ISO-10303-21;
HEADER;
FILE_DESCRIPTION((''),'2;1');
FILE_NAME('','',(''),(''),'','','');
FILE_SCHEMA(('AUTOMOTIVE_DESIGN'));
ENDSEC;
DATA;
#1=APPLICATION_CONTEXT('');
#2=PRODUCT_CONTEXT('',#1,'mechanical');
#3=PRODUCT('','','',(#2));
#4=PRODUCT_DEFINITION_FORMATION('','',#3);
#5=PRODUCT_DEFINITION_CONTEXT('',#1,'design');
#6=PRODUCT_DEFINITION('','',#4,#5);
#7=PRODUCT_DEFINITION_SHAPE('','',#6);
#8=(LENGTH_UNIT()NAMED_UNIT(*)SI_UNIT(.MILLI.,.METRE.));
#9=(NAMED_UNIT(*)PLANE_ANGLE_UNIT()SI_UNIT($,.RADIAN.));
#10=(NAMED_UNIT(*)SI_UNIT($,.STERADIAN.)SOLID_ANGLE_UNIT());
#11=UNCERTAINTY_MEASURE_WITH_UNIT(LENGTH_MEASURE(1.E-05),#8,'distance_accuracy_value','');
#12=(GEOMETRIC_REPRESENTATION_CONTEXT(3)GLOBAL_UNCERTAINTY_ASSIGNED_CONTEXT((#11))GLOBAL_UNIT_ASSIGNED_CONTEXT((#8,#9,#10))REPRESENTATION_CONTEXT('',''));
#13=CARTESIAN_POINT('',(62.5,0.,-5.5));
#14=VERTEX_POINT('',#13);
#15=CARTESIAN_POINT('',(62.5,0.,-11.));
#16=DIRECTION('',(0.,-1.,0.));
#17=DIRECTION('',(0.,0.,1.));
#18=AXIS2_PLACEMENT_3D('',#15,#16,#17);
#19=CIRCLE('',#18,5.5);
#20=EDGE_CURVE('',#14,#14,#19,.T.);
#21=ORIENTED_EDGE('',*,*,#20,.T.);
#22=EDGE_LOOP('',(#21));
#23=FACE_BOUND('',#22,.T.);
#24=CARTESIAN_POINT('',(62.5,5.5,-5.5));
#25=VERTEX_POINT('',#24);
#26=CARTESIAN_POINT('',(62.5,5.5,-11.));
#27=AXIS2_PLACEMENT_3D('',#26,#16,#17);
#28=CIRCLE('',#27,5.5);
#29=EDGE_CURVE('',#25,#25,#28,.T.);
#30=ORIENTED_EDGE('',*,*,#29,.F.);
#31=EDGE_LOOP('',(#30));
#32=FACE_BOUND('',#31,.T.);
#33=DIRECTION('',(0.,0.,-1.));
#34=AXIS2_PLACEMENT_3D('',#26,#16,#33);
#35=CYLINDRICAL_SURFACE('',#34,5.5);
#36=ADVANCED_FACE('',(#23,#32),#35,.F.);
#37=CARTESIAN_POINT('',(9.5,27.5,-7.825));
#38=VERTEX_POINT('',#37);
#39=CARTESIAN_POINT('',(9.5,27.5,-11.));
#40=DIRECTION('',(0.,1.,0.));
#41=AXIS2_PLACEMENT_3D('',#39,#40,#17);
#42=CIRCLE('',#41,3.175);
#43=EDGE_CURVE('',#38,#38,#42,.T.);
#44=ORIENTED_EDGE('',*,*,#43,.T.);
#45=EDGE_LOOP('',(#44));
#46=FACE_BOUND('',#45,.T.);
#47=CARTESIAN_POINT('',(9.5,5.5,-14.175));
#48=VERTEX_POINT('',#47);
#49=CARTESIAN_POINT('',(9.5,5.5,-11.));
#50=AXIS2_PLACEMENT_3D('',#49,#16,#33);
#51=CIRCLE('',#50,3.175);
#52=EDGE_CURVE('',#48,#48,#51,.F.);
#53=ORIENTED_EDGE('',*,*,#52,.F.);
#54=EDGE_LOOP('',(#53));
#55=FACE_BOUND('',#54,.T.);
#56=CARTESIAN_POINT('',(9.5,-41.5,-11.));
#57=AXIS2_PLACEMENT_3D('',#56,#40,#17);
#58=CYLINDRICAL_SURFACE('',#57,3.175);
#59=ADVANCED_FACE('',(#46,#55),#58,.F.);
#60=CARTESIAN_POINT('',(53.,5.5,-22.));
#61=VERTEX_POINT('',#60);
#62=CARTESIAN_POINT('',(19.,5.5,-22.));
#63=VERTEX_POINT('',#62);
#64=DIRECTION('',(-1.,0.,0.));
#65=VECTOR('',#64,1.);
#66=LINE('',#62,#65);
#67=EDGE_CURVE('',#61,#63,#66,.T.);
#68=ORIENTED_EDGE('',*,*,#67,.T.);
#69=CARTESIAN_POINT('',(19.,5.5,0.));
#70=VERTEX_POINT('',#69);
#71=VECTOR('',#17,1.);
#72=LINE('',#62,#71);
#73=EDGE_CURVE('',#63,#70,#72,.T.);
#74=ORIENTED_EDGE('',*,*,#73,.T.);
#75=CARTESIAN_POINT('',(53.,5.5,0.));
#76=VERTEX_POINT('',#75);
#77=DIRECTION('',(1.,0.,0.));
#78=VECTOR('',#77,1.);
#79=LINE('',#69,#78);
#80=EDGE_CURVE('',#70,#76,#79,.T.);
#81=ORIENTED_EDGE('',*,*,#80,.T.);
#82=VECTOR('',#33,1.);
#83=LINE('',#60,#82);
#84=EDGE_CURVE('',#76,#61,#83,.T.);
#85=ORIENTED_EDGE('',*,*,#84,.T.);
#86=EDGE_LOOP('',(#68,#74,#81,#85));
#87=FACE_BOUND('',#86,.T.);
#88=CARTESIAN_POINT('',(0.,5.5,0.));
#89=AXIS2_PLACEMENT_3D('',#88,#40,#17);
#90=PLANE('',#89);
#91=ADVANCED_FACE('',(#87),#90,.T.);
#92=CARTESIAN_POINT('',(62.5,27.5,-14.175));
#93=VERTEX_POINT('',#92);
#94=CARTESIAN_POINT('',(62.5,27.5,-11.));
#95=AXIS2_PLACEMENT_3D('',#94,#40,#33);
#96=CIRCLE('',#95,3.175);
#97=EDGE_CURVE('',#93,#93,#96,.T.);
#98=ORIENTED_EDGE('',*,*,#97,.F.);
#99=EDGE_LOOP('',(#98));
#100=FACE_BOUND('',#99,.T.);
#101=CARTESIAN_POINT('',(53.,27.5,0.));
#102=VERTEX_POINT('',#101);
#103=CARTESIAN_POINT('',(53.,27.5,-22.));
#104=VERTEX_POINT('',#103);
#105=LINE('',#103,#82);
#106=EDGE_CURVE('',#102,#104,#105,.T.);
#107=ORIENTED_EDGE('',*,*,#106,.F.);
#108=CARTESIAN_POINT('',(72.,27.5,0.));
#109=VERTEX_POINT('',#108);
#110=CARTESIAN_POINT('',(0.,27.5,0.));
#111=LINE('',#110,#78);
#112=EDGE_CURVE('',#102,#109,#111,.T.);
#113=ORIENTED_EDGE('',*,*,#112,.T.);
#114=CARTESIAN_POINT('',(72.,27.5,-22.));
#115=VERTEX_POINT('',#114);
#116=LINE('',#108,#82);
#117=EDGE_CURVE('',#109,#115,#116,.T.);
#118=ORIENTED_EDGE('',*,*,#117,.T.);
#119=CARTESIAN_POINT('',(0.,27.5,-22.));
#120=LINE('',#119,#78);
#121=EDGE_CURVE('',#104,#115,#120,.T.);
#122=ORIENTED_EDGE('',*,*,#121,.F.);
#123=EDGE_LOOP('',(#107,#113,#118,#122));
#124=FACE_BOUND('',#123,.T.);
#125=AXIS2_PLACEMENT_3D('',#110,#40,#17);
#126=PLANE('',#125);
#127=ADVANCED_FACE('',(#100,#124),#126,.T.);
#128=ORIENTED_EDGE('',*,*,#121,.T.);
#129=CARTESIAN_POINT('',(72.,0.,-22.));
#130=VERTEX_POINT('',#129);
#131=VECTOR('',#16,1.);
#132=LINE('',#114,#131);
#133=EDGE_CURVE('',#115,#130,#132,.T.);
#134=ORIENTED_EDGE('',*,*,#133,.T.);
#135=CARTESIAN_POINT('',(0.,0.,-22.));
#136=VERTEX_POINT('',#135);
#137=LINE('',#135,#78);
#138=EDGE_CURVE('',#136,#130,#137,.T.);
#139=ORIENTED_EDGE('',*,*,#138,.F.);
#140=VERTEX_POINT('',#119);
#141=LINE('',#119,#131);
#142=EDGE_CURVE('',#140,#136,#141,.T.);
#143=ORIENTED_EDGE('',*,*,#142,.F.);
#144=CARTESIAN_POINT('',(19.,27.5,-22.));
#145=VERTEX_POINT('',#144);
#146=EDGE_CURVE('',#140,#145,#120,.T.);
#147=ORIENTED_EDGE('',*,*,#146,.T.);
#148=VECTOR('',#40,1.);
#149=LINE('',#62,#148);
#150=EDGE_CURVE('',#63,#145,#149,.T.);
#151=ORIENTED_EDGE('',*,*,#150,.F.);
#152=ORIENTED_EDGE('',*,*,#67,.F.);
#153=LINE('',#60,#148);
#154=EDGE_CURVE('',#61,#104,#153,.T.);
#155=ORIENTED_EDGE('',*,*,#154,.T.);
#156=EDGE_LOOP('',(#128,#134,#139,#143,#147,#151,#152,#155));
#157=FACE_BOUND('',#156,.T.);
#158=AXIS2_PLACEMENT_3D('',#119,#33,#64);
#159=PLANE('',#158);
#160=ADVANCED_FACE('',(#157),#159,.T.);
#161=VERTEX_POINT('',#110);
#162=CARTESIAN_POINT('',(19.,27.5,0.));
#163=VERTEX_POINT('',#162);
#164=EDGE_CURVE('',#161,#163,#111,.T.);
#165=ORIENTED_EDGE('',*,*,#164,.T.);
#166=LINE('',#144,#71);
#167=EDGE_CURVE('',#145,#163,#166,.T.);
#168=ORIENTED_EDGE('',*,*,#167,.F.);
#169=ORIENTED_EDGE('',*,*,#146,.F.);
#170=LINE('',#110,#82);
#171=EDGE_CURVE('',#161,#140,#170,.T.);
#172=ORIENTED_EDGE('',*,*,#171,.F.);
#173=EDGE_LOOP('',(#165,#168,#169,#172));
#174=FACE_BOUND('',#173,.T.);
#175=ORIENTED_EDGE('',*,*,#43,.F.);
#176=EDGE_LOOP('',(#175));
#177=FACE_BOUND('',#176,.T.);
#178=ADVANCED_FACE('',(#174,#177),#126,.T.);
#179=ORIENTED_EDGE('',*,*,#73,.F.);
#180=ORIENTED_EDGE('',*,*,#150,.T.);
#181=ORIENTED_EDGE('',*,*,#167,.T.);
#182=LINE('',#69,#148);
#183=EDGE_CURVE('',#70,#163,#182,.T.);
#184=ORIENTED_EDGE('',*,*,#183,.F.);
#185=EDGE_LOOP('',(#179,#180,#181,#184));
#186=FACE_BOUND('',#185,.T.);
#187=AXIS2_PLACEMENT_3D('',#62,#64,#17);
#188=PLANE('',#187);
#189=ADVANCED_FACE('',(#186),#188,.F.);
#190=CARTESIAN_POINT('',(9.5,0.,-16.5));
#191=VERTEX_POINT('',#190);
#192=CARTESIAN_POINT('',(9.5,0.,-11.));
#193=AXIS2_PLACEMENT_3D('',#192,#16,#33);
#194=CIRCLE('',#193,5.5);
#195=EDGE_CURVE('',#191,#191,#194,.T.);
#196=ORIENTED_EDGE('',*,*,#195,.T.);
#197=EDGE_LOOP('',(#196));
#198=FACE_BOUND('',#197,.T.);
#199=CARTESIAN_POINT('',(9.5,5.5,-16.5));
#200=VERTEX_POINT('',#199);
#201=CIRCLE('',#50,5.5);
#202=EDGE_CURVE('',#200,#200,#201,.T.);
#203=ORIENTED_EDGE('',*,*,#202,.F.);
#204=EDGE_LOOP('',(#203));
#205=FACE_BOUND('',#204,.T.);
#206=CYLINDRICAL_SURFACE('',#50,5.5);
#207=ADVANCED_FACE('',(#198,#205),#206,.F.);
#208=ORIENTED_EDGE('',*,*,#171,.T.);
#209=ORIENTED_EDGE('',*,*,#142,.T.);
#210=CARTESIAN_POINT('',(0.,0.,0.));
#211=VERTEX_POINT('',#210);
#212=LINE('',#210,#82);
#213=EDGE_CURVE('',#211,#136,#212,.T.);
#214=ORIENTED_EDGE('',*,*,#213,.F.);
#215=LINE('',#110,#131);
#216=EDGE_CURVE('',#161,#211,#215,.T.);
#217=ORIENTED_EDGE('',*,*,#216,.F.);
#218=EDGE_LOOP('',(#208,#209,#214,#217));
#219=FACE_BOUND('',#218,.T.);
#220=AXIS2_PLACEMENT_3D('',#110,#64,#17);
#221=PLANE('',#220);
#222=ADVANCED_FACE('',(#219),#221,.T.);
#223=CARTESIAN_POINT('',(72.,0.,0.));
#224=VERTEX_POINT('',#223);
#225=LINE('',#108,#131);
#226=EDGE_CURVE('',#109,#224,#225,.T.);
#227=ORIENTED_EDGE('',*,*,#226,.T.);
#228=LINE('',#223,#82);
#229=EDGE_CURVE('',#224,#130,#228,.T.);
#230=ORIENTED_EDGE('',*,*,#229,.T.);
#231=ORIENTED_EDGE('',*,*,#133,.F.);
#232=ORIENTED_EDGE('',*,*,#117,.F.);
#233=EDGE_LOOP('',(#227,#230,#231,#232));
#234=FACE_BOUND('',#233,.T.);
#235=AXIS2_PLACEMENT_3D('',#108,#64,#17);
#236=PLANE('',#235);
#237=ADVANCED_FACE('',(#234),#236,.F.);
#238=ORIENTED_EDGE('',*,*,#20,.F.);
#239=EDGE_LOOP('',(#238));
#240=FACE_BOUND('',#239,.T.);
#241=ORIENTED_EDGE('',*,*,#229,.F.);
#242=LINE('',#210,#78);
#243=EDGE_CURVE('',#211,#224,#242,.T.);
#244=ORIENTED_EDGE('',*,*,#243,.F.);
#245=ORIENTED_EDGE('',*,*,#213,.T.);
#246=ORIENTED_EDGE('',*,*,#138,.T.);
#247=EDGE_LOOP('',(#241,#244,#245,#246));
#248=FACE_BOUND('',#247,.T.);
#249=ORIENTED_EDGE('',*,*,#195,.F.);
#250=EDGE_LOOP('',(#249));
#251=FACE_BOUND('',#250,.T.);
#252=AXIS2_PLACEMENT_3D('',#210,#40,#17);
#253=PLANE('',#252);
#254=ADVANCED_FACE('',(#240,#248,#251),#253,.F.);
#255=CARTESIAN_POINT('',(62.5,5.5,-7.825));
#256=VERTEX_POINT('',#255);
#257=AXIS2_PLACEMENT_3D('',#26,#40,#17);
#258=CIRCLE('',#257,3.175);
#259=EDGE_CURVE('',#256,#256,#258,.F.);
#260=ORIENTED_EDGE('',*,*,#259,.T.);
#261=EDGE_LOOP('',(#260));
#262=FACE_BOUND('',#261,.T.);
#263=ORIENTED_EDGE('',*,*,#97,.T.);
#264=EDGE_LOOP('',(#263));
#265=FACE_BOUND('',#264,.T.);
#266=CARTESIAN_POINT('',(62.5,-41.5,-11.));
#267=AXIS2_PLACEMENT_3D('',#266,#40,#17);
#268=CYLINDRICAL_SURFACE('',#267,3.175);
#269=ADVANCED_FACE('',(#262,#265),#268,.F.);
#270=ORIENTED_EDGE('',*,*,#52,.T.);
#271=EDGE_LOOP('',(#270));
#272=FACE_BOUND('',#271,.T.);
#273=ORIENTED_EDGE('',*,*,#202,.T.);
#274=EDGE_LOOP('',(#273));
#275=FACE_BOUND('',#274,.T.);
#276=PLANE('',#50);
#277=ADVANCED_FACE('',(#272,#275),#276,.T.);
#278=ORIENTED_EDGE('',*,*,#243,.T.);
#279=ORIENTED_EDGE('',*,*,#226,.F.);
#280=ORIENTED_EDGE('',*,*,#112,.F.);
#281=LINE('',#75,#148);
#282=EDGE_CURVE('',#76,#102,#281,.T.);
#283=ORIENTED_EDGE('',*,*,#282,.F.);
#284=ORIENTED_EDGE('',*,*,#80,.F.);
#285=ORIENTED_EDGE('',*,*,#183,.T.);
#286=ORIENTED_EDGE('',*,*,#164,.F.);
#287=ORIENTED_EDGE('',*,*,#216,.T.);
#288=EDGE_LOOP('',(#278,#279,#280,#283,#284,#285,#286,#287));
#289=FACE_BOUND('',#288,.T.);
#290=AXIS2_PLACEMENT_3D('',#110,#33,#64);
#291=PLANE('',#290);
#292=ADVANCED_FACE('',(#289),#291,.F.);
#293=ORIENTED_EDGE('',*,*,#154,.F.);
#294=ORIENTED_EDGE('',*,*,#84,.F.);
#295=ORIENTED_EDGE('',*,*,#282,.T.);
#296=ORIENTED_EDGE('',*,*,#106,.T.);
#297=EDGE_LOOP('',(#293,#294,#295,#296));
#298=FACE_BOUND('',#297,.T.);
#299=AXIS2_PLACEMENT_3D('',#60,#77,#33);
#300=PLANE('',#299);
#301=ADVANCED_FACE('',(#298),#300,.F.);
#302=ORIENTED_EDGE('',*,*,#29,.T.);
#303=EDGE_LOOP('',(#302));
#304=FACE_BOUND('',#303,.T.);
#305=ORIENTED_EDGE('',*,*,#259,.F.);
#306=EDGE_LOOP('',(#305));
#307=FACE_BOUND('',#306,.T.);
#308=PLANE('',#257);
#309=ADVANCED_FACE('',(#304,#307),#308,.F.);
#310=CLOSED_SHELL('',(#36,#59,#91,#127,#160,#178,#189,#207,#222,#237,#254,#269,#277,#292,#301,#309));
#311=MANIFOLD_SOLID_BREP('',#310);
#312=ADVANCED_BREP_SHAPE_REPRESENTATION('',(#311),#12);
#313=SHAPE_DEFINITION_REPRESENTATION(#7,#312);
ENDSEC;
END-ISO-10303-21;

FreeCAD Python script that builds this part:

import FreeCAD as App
import Part
import Sketcher

V = App.Vector


def add_polygon(sketch, points):
    """Adds a closed chain of lines whose ends are joined by coincident constraints."""
    first, n = sketch.GeometryCount, len(points)
    for a, b in zip(points, points[1:] + points[:1]):
        sketch.addGeometry(Part.LineSegment(App.Vector(*a, 0), App.Vector(*b, 0)), False)
    for i in range(n):
        sketch.addConstraint(Sketcher.Constraint("Coincident", first + i, 2, first + (i + 1) % n, 1))

doc = App.newDocument("Part")
body = doc.addObject("PartDesign::Body", "Body")

sketch1 = doc.addObject("Sketcher::SketchObject", "Sketch")
body.addObject(sketch1)
sketch1.AttachmentSupport = (doc.XZ_Plane, [""])
sketch1.MapMode = "FlatFace"
add_polygon(sketch1, [(0, -22), (0, 0), (72, 0), (72, -22)])
sketch1.addConstraint([
    Sketcher.Constraint("Vertical", 0),
    Sketcher.Constraint("Horizontal", 1),
    Sketcher.Constraint("Vertical", 2),
    Sketcher.Constraint("Horizontal", 3),
    Sketcher.Constraint("Coincident", 0, 2, -1, 1),
    Sketcher.Constraint("DistanceX", 1, 1, 1, 2, 72.0),
    Sketcher.Constraint("DistanceY", 0, 1, 0, 2, 22.0),
])
pad1 = doc.addObject("PartDesign::Pad", "Pad")
body.addObject(pad1)
pad1.Profile = sketch1
pad1.Length = 27.5
pad1.Reversed = True

sketch2 = doc.addObject("Sketcher::SketchObject", "Sketch001")
body.addObject(sketch2)
sketch2.AttachmentSupport = (doc.XZ_Plane, [""])
sketch2.MapMode = "FlatFace"
sketch2.AttachmentOffset = App.Placement(V(0, 0, -27.5), App.Rotation())
add_polygon(sketch2, [(19, -22), (19, 0), (53, 0), (53, -22)])
sketch2.addConstraint([
    Sketcher.Constraint("Vertical", 0),
    Sketcher.Constraint("Horizontal", 1),
    Sketcher.Constraint("Vertical", 2),
    Sketcher.Constraint("Horizontal", 3),
    Sketcher.Constraint("PointOnObject", 0, 2, -1),
    Sketcher.Constraint("DistanceX", 1, 1, 1, 2, 34.0),
    Sketcher.Constraint("DistanceY", 0, 1, 0, 2, 22.0),
    Sketcher.Constraint("DistanceX", -1, 1, 0, 2, 19.0),
])
pocket1 = doc.addObject("PartDesign::Pocket", "Pocket")
body.addObject(pocket1)
pocket1.Profile = sketch2
pocket1.Length = 22
pocket1.Reversed = True

sketch3 = doc.addObject("Sketcher::SketchObject", "Sketch002")
body.addObject(sketch3)
sketch3.AttachmentSupport = (doc.XZ_Plane, [""])
sketch3.MapMode = "FlatFace"
sketch3.AttachmentOffset = App.Placement(V(0, 0, -27.5), App.Rotation())
sketch3.addGeometry([
    Part.Circle(V(9.5, -11, 0), V(0, 0, 1), 3.2),
    Part.Circle(V(62.5, -11, 0), V(0, 0, 1), 3.2),
], False)
sketch3.addConstraint([
    Sketcher.Constraint("Equal", 0, 1),
    Sketcher.Constraint("Horizontal", 0, 3, 1, 3),
    Sketcher.Constraint("Diameter", 0, 6.35),
    Sketcher.Constraint("DistanceY", 0, 3, -1, 1, 11.0),
    Sketcher.Constraint("DistanceX", 0, 3, 1, 3, 53.0),
    Sketcher.Constraint("DistanceX", -1, 1, 0, 3, 9.5),
])
pocket2 = doc.addObject("PartDesign::Pocket", "Pocket001")
body.addObject(pocket2)
pocket2.Profile = sketch3
pocket2.Length = 69
pocket2.Reversed = True

sketch4 = doc.addObject("Sketcher::SketchObject", "Sketch003")
body.addObject(sketch4)
sketch4.AttachmentSupport = (doc.XZ_Plane, [""])
sketch4.MapMode = "FlatFace"
sketch4.addGeometry([
    Part.Circle(V(10, -11, 0), V(0, 0, 1), 6),
    Part.Circle(V(62, -11, 0), V(0, 0, 1), 6),
], False)
sketch4.addConstraint([
    Sketcher.Constraint("Equal", 0, 1),
    Sketcher.Constraint("Horizontal", 0, 3, 1, 3),
    Sketcher.Constraint("Diameter", 0, 11.0),
    Sketcher.Constraint("DistanceY", 0, 3, -1, 1, 11.0),
    Sketcher.Constraint("DistanceX", 0, 3, 1, 3, 53.0),
    Sketcher.Constraint("DistanceX", -1, 1, 0, 3, 9.5),
])
pocket3 = doc.addObject("PartDesign::Pocket", "Pocket002")
body.addObject(pocket3)
pocket3.Profile = sketch4
pocket3.Length = 5.5

doc.recompute()
